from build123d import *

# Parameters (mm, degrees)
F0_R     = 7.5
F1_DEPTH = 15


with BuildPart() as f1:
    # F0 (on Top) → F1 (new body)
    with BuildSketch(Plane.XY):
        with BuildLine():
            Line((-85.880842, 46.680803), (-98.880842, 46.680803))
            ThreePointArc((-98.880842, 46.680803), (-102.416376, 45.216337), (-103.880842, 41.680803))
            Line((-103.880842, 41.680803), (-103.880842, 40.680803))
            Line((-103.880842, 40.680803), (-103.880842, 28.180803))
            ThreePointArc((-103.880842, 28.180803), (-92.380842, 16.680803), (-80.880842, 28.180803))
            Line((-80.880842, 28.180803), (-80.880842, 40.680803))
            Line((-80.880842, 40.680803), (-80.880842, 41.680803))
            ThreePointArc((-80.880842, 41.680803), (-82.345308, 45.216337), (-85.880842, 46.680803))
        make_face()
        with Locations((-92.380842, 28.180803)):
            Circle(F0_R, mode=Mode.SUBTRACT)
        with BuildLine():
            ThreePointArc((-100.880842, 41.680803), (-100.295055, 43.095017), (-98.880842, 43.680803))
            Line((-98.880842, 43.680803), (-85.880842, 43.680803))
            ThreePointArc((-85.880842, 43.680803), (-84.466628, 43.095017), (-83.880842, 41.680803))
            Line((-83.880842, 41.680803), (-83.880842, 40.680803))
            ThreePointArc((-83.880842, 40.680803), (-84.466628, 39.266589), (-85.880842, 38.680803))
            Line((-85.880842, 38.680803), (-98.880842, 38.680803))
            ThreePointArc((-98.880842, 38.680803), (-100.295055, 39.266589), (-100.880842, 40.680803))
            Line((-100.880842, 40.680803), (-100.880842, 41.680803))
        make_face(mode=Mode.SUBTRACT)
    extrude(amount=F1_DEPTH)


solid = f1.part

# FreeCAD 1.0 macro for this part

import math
import FreeCAD as App
import Part
import Sketcher

V = App.Vector

doc = App.newDocument("Part")
body = doc.addObject("PartDesign::Body", "Body")

# Sketch on XY plane
sketch1 = body.newObject("Sketcher::SketchObject", "Sketch")
sketch1.AttachmentSupport = (doc.getObject("XY_Plane"), [""])
sketch1.MapMode = "FlatFace"
sketch1.addGeometry([
    Part.LineSegment(V(-85.9, 46.7, 0), V(-98.9, 46.7, 0)),  # 0
    Part.ArcOfCircle(Part.Circle(V(-98.9, 41.7, 0), V(0, 0, 1), 5), math.radians(90), math.radians(180)),  # 1
    Part.LineSegment(V(-103.9, 41.7, 0), V(-103.9, 28.2, 0)),  # 2
    Part.ArcOfCircle(Part.Circle(V(-92.4, 28.2, 0), V(0, 0, 1), 11.5), math.radians(180), math.radians(360)),  # 3
    Part.LineSegment(V(-80.9, 28.2, 0), V(-80.9, 41.7, 0)),  # 4
    Part.ArcOfCircle(Part.Circle(V(-85.9, 41.7, 0), V(0, 0, 1), 5), math.radians(0), math.radians(90)),  # 5
    Part.Circle(V(-92.4, 28.2, 0), V(0, 0, 1), 7.5),  # 6
    Part.LineSegment(V(-100.9, 40.7, 0), V(-100.9, 41.7, 0)),  # 7
    Part.ArcOfCircle(Part.Circle(V(-98.9, 41.7, 0), V(0, 0, 1), 2), math.radians(90), math.radians(180)),  # 8
    Part.LineSegment(V(-98.9, 43.7, 0), V(-85.9, 43.7, 0)),  # 9
    Part.ArcOfCircle(Part.Circle(V(-85.9, 41.7, 0), V(0, 0, 1), 2), math.radians(0), math.radians(90)),  # 10
    Part.LineSegment(V(-83.9, 41.7, 0), V(-83.9, 40.7, 0)),  # 11
    Part.ArcOfCircle(Part.Circle(V(-85.9, 40.7, 0), V(0, 0, 1), 2), math.radians(-90), math.radians(0)),  # 12
    Part.LineSegment(V(-85.9, 38.7, 0), V(-98.9, 38.7, 0)),  # 13
    Part.ArcOfCircle(Part.Circle(V(-98.9, 40.7, 0), V(0, 0, 1), 2), math.radians(-180), math.radians(-90)),  # 14
], False)
sketch1.addConstraint([
    Sketcher.Constraint("Tangent", 0, 2, 1, 1),
    Sketcher.Constraint("Tangent", 1, 2, 2, 1),
    Sketcher.Constraint("Tangent", 2, 2, 3, 1),
    Sketcher.Constraint("Tangent", 3, 2, 4, 1),
    Sketcher.Constraint("Tangent", 4, 2, 5, 1),
    Sketcher.Constraint("Tangent", 5, 2, 0, 1),
    Sketcher.Constraint("Tangent", 7, 2, 8, 2),
    Sketcher.Constraint("Tangent", 8, 1, 9, 1),
    Sketcher.Constraint("Tangent", 9, 2, 10, 2),
    Sketcher.Constraint("Tangent", 10, 1, 11, 1),
    Sketcher.Constraint("Tangent", 11, 2, 12, 2),
    Sketcher.Constraint("Tangent", 12, 1, 13, 1),
    Sketcher.Constraint("Tangent", 13, 2, 14, 2),
    Sketcher.Constraint("Tangent", 14, 1, 7, 1),
    Sketcher.Constraint("Horizontal", 0),
    Sketcher.Constraint("Vertical", 2),
    Sketcher.Constraint("Vertical", 4),
    Sketcher.Constraint("Vertical", 7),
    Sketcher.Constraint("Horizontal", 9),
    Sketcher.Constraint("Vertical", 11),
    Sketcher.Constraint("Horizontal", 13),
    Sketcher.Constraint("Coincident", 6, 3, 3, 3),
    Sketcher.Constraint("Coincident", 8, 3, 1, 3),
    Sketcher.Constraint("Coincident", 10, 3, 5, 3),
    Sketcher.Constraint("Equal", 1, 5),
    Sketcher.Constraint("Equal", 10, 12),
    Sketcher.Constraint("Equal", 12, 14),
    Sketcher.Constraint("Diameter", 6, 15.0),
    Sketcher.Constraint("Radius", 1, 5.0),
    Sketcher.Constraint("Radius", 8, 2.0),
    Sketcher.Constraint("Radius", 3, 11.5),
    Sketcher.Constraint("DistanceY", 7, 1, 7, 2, 1.0),
    Sketcher.Constraint("DistanceY", 2, 2, 2, 1, 13.5),
    Sketcher.Constraint("DistanceY", -1, 1, 12, 3, 40.680802),
    Sketcher.Constraint("DistanceX", 3, 3, -1, 1, 92.380842),
])
pad1 = body.newObject("PartDesign::Pad", "Pad")
pad1.Profile = sketch1
pad1.Length = 15

doc.recompute()
